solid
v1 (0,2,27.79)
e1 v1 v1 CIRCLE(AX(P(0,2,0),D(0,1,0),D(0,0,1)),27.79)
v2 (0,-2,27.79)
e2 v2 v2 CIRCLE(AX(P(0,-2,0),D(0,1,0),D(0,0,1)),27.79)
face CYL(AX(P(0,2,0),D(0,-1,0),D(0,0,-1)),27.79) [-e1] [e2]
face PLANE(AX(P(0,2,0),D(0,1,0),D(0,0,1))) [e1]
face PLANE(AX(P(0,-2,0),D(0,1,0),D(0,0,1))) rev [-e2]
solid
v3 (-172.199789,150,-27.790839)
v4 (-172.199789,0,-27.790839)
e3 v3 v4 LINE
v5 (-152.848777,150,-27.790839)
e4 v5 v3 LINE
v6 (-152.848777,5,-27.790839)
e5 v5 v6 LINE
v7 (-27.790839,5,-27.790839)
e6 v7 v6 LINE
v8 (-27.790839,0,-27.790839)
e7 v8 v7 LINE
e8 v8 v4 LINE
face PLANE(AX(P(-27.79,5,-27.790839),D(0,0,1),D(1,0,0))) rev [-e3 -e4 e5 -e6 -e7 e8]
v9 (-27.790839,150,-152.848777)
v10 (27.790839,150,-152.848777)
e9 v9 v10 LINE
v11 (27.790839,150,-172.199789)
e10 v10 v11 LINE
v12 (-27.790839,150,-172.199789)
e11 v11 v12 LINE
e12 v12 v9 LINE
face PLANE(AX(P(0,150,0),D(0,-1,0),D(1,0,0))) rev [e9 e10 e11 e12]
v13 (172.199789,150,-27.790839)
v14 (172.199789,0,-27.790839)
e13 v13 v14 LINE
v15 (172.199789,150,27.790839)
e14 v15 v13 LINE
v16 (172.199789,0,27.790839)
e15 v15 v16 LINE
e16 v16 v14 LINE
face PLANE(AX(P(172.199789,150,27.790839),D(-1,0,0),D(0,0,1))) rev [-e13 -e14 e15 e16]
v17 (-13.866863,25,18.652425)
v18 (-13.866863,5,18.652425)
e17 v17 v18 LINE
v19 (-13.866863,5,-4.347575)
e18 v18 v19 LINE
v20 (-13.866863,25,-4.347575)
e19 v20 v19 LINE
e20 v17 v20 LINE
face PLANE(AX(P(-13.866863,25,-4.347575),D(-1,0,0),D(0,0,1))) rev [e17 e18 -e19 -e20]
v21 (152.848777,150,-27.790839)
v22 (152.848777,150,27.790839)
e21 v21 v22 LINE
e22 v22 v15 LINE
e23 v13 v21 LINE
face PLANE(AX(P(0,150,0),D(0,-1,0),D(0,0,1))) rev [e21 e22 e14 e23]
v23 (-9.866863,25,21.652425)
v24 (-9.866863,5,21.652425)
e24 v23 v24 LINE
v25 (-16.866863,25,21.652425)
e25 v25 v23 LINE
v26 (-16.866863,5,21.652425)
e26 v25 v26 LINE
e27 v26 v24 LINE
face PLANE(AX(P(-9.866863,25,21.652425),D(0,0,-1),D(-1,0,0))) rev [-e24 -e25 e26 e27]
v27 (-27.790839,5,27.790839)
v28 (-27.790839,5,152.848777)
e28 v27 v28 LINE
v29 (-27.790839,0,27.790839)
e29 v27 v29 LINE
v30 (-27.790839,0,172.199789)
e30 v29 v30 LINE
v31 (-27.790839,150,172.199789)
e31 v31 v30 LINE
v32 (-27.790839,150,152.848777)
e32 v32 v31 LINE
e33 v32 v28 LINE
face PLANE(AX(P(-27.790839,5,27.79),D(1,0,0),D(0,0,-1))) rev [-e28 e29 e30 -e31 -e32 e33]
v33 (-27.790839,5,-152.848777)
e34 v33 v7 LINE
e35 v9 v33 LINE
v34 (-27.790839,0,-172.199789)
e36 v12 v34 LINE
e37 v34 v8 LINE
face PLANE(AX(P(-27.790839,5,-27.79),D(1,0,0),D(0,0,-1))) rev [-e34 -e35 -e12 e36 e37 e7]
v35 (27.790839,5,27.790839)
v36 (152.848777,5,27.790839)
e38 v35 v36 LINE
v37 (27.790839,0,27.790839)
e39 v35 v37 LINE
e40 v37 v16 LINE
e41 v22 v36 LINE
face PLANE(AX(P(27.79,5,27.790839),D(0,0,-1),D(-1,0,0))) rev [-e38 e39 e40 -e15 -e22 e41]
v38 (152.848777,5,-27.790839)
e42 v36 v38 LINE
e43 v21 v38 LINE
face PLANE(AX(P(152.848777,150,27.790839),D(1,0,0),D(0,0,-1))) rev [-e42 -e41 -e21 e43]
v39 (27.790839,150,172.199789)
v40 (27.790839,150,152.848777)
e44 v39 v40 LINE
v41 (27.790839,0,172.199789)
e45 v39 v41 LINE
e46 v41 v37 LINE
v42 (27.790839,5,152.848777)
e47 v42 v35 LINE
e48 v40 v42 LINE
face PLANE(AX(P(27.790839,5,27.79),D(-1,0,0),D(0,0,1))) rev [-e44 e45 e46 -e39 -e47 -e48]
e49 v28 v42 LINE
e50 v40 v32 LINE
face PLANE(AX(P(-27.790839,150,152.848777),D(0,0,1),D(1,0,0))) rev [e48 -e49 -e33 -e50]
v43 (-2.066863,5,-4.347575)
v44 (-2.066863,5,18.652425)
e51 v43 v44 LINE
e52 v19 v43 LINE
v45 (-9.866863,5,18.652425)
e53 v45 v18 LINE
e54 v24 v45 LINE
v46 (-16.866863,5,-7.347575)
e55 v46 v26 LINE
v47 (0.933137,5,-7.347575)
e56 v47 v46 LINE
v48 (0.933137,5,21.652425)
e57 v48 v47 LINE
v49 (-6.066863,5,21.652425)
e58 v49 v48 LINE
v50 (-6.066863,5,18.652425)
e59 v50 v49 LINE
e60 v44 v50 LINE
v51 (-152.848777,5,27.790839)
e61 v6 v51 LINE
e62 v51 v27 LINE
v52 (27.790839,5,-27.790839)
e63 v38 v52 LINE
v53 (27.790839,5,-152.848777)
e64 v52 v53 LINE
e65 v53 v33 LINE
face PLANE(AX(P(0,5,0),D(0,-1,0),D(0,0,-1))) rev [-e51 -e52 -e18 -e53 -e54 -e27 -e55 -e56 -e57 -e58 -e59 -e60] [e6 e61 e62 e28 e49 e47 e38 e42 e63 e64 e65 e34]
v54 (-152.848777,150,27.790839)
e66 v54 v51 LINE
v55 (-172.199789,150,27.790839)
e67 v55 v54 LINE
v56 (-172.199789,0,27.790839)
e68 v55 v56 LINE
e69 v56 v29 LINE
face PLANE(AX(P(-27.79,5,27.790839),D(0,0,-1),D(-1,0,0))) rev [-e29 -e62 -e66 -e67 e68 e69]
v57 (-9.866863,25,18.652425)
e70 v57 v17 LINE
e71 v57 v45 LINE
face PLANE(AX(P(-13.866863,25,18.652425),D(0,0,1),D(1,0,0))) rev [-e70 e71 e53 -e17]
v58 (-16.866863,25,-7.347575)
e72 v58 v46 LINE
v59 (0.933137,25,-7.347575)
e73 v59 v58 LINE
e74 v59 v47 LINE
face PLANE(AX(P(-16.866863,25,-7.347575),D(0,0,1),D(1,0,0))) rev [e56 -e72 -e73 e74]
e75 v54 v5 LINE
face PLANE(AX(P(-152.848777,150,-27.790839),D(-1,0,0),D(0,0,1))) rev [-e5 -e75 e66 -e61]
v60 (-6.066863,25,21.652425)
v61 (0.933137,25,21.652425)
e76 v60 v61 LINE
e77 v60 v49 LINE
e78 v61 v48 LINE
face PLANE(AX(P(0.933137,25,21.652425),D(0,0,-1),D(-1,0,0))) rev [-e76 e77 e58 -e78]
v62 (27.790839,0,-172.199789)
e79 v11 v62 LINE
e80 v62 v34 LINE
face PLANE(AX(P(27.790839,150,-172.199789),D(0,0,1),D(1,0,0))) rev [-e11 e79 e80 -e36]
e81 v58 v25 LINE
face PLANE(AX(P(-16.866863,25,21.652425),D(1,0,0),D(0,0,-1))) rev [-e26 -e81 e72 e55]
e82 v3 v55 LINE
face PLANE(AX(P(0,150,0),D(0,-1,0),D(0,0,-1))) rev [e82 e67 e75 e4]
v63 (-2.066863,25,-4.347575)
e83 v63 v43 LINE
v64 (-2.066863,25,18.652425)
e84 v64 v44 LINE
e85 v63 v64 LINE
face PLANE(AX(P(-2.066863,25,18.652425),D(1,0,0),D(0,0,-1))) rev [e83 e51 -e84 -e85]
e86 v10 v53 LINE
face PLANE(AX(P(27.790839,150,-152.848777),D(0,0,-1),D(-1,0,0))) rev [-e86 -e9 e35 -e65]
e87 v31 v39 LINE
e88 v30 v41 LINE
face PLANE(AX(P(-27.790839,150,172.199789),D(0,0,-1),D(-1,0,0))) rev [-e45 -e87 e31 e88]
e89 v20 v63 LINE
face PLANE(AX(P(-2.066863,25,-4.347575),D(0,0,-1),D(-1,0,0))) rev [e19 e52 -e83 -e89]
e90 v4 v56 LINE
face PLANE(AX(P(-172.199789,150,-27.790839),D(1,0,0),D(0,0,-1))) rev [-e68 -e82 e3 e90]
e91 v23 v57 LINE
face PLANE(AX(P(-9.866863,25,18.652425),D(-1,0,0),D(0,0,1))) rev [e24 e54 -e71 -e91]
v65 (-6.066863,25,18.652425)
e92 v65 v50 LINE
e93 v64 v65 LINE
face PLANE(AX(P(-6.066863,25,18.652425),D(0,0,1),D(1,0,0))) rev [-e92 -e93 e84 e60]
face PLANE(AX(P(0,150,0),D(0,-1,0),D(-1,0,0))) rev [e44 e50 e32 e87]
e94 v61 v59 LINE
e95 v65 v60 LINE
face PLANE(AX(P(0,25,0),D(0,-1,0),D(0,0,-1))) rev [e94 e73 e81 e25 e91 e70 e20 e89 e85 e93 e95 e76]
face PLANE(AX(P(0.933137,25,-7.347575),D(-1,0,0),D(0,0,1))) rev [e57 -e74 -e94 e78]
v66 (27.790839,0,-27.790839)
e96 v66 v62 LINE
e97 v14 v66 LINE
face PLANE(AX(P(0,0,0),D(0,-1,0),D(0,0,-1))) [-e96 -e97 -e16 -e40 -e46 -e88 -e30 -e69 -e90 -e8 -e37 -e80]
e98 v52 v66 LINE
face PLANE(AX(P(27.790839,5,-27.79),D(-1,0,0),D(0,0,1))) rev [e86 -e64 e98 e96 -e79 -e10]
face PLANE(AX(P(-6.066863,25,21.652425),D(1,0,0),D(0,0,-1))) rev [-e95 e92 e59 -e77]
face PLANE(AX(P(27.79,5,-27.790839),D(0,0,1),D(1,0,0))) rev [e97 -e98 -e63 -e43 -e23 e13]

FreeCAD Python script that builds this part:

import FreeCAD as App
import Part
import Sketcher
from FreeCAD import Vector
Q = App.Units.Quantity

doc = App.newDocument("Part")
body = doc.addObject("PartDesign::Body", "Body")

# Sketch on XZ plane
sketch1 = body.newObject("Sketcher::SketchObject", "Sketch")
sketch1.AttachmentSupport = (doc.getObject("XZ_Plane"), [""])
sketch1.MapMode = "FlatFace"
sketch1.addGeometry(Part.Circle(Vector(0, 0, 0), Vector(0, 0, 1), 28), False)
sketch1.addConstraint(Sketcher.Constraint("Coincident", 0, 3, -1, 1))
sketch1.addConstraint(Sketcher.Constraint("Diameter", 0, Q("55.58 mm")))
pad1 = body.newObject("PartDesign::Pad", "Pad")
pad1.Profile = sketch1
pad1.Length = 4
pad1.Midplane = True
body2 = doc.addObject("PartDesign::Body", "Body001")

# Sketch on XZ plane
sketch2 = body2.newObject("Sketcher::SketchObject", "Sketch001")
sketch2.AttachmentSupport = (doc.getObject("XZ_Plane001"), [""])
sketch2.MapMode = "FlatFace"
sketch2.addGeometry(Part.LineSegment(Vector(-153, -28, 0), Vector(-153, 28, 0)), False)
sketch2.addGeometry(Part.LineSegment(Vector(-153, 28, 0), Vector(-28, 28, 0)), False)
sketch2.addGeometry(Part.LineSegment(Vector(-28, 28, 0), Vector(-28, -28, 0)), False)
sketch2.addGeometry(Part.LineSegment(Vector(-28, -28, 0), Vector(-153, -28, 0)), False)
sketch2.addConstraint(Sketcher.Constraint("Coincident", 0, 2, 1, 1))
sketch2.addConstraint(Sketcher.Constraint("Coincident", 1, 2, 2, 1))
sketch2.addConstraint(Sketcher.Constraint("Coincident", 2, 2, 3, 1))
sketch2.addConstraint(Sketcher.Constraint("Coincident", 3, 2, 0, 1))
sketch2.addConstraint(Sketcher.Constraint("Vertical", 0))
sketch2.addConstraint(Sketcher.Constraint("Horizontal", 1))
sketch2.addConstraint(Sketcher.Constraint("Vertical", 2))
sketch2.addConstraint(Sketcher.Constraint("Horizontal", 3))
sketch2.addConstraint(Sketcher.Constraint("DistanceX", 1, 2, -1, 1, Q("27.79 mm")))
sketch2.addConstraint(Sketcher.Constraint("DistanceY", 0, 1, 0, 2, Q("55.581679 mm")))
sketch2.addConstraint(Sketcher.Constraint("DistanceX", 1, 1, 1, 2, Q("125.058777 mm")))
sketch2.addConstraint(Sketcher.Constraint("DistanceY", -1, 1, 0, 2, Q("27.790839 mm")))
pad2 = body2.newObject("PartDesign::Pad", "Pad001")
pad2.Profile = sketch2
pad2.Length = 5
pad2.Reversed = True
doc.recompute()

polarpattern = body2.newObject("PartDesign::PolarPattern", "PolarPattern")
polarpattern.Originals = [pad2]
polarpattern.Axis = (doc.getObject("Y_Axis001"), [""])
polarpattern.Angle = 360
polarpattern.Occurrences = 4
body2.Tip = polarpattern

# Sketch on XZ plane
sketch3 = body2.newObject("Sketcher::SketchObject", "Sketch002")
sketch3.AttachmentSupport = (doc.getObject("XZ_Plane001"), [""])
sketch3.MapMode = "FlatFace"
sketch3.addGeometry(Part.LineSegment(Vector(-172, -28, 0), Vector(-172, 28, 0)), False)
sketch3.addGeometry(Part.LineSegment(Vector(-172, 28, 0), Vector(-153, 28, 0)), False)
sketch3.addGeometry(Part.LineSegment(Vector(-153, 28, 0), Vector(-153, -28, 0)), False)
sketch3.addGeometry(Part.LineSegment(Vector(-153, -28, 0), Vector(-172, -28, 0)), False)
sketch3.addConstraint(Sketcher.Constraint("Coincident", 0, 2, 1, 1))
sketch3.addConstraint(Sketcher.Constraint("Coincident", 1, 2, 2, 1))
sketch3.addConstraint(Sketcher.Constraint("Coincident", 2, 2, 3, 1))
sketch3.addConstraint(Sketcher.Constraint("Coincident", 3, 2, 0, 1))
sketch3.addConstraint(Sketcher.Constraint("Vertical", 0))
sketch3.addConstraint(Sketcher.Constraint("Horizontal", 1))
sketch3.addConstraint(Sketcher.Constraint("Vertical", 2))
sketch3.addConstraint(Sketcher.Constraint("Horizontal", 3))
sketch3.addConstraint(Sketcher.Constraint("DistanceY", 0, 1, 0, 2, Q("55.581679 mm")))
sketch3.addConstraint(Sketcher.Constraint("DistanceX", 1, 1, 1, 2, Q("19.351012 mm")))
sketch3.addConstraint(Sketcher.Constraint("DistanceX", 0, 2, -1, 1, Q("172.199789 mm")))
sketch3.addConstraint(Sketcher.Constraint("DistanceY", -1, 1, 0, 2, Q("27.790839 mm")))
pad3 = body2.newObject("PartDesign::Pad", "Pad002")
pad3.Profile = sketch3
pad3.Length = 150
pad3.Reversed = True
doc.recompute()

polarpattern2 = body2.newObject("PartDesign::PolarPattern", "PolarPattern001")
polarpattern2.Originals = [pad3]
polarpattern2.Axis = (doc.getObject("Y_Axis001"), [""])
polarpattern2.Angle = 360
polarpattern2.Occurrences = 4
body2.Tip = polarpattern2

# Sketch on XZ plane
sketch4 = body2.newObject("Sketcher::SketchObject", "Sketch003")
sketch4.AttachmentSupport = (doc.getObject("XZ_Plane001"), [""])
sketch4.MapMode = "FlatFace"
sketch4.addGeometry(Part.LineSegment(Vector(-28, -28, 0), Vector(-28, 28, 0)), False)
sketch4.addGeometry(Part.LineSegment(Vector(-28, 28, 0), Vector(28, 28, 0)), False)
sketch4.addGeometry(Part.LineSegment(Vector(28, 28, 0), Vector(28, -28, 0)), False)
sketch4.addGeometry(Part.LineSegment(Vector(28, -28, 0), Vector(-28, -28, 0)), False)
sketch4.addConstraint(Sketcher.Constraint("Coincident", 0, 2, 1, 1))
sketch4.addConstraint(Sketcher.Constraint("Coincident", 1, 2, 2, 1))
sketch4.addConstraint(Sketcher.Constraint("Coincident", 2, 2, 3, 1))
sketch4.addConstraint(Sketcher.Constraint("Coincident", 3, 2, 0, 1))
sketch4.addConstraint(Sketcher.Constraint("Vertical", 0))
sketch4.addConstraint(Sketcher.Constraint("Horizontal", 1))
sketch4.addConstraint(Sketcher.Constraint("Vertical", 2))
sketch4.addConstraint(Sketcher.Constraint("Horizontal", 3))
sketch4.addConstraint(Sketcher.Constraint("Symmetric", 0, 2, 2, 2, -1, 1))
sketch4.addConstraint(Sketcher.Constraint("Equal", 3, 0))
sketch4.addConstraint(Sketcher.Constraint("DistanceX", 1, 1, 1, 2, Q("55.58 mm")))
pad4 = body2.newObject("PartDesign::Pad", "Pad003")
pad4.Profile = sketch4
pad4.Length = 5
pad4.Reversed = True

# Sketch on XZ plane
sketch5 = body2.newObject("Sketcher::SketchObject", "Sketch004")
sketch5.AttachmentSupport = (doc.getObject("XZ_Plane001"), [""])
sketch5.MapMode = "FlatFace"
sketch5.addGeometry(Part.LineSegment(Vector(0.9, -7.3, 0), Vector(-16.9, -7.3, 0)), False)
sketch5.addGeometry(Part.LineSegment(Vector(-16.9, -7.3, 0), Vector(-16.9, 21.7, 0)), False)
sketch5.addGeometry(Part.LineSegment(Vector(-16.9, 21.7, 0), Vector(-9.9, 21.7, 0)), False)
sketch5.addGeometry(Part.LineSegment(Vector(-9.9, 21.7, 0), Vector(-9.9, 18.7, 0)), False)
sketch5.addGeometry(Part.LineSegment(Vector(-9.9, 18.7, 0), Vector(-13.9, 18.7, 0)), False)
sketch5.addGeometry(Part.LineSegment(Vector(-13.9, 18.7, 0), Vector(-13.9, -4.3, 0)), False)
sketch5.addGeometry(Part.LineSegment(Vector(-13.9, -4.3, 0), Vector(-2.1, -4.3, 0)), False)
sketch5.addGeometry(Part.LineSegment(Vector(-2.1, -4.3, 0), Vector(-2.1, 18.7, 0)), False)
sketch5.addGeometry(Part.LineSegment(Vector(-2.1, 18.7, 0), Vector(-6.1, 18.7, 0)), False)
sketch5.addGeometry(Part.LineSegment(Vector(-6.1, 18.7, 0), Vector(-6.1, 21.7, 0)), False)
sketch5.addGeometry(Part.LineSegment(Vector(-6.1, 21.7, 0), Vector(0.9, 21.7, 0)), False)
sketch5.addGeometry(Part.LineSegment(Vector(0.9, 21.7, 0), Vector(0.9, -7.3, 0)), False)
sketch5.addConstraint(Sketcher.Constraint("Coincident", 0, 2, 1, 1))
sketch5.addConstraint(Sketcher.Constraint("Coincident", 1, 2, 2, 1))
sketch5.addConstraint(Sketcher.Constraint("Coincident", 2, 2, 3, 1))
sketch5.addConstraint(Sketcher.Constraint("Coincident", 3, 2, 4, 1))
sketch5.addConstraint(Sketcher.Constraint("Coincident", 4, 2, 5, 1))
sketch5.addConstraint(Sketcher.Constraint("Coincident", 5, 2, 6, 1))
sketch5.addConstraint(Sketcher.Constraint("Coincident", 6, 2, 7, 1))
sketch5.addConstraint(Sketcher.Constraint("Coincident", 7, 2, 8, 1))
sketch5.addConstraint(Sketcher.Constraint("Coincident", 8, 2, 9, 1))
sketch5.addConstraint(Sketcher.Constraint("Coincident", 9, 2, 10, 1))
sketch5.addConstraint(Sketcher.Constraint("Coincident", 10, 2, 11, 1))
sketch5.addConstraint(Sketcher.Constraint("Coincident", 11, 2, 0, 1))
sketch5.addConstraint(Sketcher.Constraint("Horizontal", 0))
sketch5.addConstraint(Sketcher.Constraint("Vertical", 1))
sketch5.addConstraint(Sketcher.Constraint("Horizontal", 2))
sketch5.addConstraint(Sketcher.Constraint("Vertical", 3))
sketch5.addConstraint(Sketcher.Constraint("Horizontal", 4))
sketch5.addConstraint(Sketcher.Constraint("Vertical", 5))
sketch5.addConstraint(Sketcher.Constraint("Horizontal", 6))
sketch5.addConstraint(Sketcher.Constraint("Vertical", 7))
sketch5.addConstraint(Sketcher.Constraint("Horizontal", 8))
sketch5.addConstraint(Sketcher.Constraint("Vertical", 9))
sketch5.addConstraint(Sketcher.Constraint("Horizontal", 10))
sketch5.addConstraint(Sketcher.Constraint("Vertical", 11))
sketch5.addConstraint(Sketcher.Constraint("Horizontal", 4, 2, 7, 2))
sketch5.addConstraint(Sketcher.Constraint("Horizontal", 2, 2, 9, 2))
sketch5.addConstraint(Sketcher.Constraint("Equal", 4, 8))
sketch5.addConstraint(Sketcher.Constraint("Equal", 2, 10))
sketch5.addConstraint(Sketcher.Constraint("DistanceX", 2, 1, 2, 2, Q("7 mm")))
sketch5.addConstraint(Sketcher.Constraint("DistanceX", 4, 2, 4, 1, Q("4 mm")))
sketch5.addConstraint(Sketcher.Constraint("DistanceY", 1, 1, 1, 2, Q("29 mm")))
sketch5.addConstraint(Sketcher.Constraint("DistanceY", 3, 2, 3, 1, Q("3 mm")))
sketch5.addConstraint(Sketcher.Constraint("DistanceY", 5, 2, 5, 1, Q("23 mm")))
sketch5.addConstraint(Sketcher.Constraint("DistanceX", 0, 2, 0, 1, Q("17.8 mm")))
sketch5.addConstraint(Sketcher.Constraint("DistanceX", 0, 2, -1, 1, Q("16.866863 mm")))
sketch5.addConstraint(Sketcher.Constraint("DistanceY", 0, 2, -1, 1, Q("7.347575 mm")))
pad5 = body2.newObject("PartDesign::Pad", "Pad004")
pad5.Profile = sketch5
pad5.Length = 25
pad5.Reversed = True

doc.recompute()
